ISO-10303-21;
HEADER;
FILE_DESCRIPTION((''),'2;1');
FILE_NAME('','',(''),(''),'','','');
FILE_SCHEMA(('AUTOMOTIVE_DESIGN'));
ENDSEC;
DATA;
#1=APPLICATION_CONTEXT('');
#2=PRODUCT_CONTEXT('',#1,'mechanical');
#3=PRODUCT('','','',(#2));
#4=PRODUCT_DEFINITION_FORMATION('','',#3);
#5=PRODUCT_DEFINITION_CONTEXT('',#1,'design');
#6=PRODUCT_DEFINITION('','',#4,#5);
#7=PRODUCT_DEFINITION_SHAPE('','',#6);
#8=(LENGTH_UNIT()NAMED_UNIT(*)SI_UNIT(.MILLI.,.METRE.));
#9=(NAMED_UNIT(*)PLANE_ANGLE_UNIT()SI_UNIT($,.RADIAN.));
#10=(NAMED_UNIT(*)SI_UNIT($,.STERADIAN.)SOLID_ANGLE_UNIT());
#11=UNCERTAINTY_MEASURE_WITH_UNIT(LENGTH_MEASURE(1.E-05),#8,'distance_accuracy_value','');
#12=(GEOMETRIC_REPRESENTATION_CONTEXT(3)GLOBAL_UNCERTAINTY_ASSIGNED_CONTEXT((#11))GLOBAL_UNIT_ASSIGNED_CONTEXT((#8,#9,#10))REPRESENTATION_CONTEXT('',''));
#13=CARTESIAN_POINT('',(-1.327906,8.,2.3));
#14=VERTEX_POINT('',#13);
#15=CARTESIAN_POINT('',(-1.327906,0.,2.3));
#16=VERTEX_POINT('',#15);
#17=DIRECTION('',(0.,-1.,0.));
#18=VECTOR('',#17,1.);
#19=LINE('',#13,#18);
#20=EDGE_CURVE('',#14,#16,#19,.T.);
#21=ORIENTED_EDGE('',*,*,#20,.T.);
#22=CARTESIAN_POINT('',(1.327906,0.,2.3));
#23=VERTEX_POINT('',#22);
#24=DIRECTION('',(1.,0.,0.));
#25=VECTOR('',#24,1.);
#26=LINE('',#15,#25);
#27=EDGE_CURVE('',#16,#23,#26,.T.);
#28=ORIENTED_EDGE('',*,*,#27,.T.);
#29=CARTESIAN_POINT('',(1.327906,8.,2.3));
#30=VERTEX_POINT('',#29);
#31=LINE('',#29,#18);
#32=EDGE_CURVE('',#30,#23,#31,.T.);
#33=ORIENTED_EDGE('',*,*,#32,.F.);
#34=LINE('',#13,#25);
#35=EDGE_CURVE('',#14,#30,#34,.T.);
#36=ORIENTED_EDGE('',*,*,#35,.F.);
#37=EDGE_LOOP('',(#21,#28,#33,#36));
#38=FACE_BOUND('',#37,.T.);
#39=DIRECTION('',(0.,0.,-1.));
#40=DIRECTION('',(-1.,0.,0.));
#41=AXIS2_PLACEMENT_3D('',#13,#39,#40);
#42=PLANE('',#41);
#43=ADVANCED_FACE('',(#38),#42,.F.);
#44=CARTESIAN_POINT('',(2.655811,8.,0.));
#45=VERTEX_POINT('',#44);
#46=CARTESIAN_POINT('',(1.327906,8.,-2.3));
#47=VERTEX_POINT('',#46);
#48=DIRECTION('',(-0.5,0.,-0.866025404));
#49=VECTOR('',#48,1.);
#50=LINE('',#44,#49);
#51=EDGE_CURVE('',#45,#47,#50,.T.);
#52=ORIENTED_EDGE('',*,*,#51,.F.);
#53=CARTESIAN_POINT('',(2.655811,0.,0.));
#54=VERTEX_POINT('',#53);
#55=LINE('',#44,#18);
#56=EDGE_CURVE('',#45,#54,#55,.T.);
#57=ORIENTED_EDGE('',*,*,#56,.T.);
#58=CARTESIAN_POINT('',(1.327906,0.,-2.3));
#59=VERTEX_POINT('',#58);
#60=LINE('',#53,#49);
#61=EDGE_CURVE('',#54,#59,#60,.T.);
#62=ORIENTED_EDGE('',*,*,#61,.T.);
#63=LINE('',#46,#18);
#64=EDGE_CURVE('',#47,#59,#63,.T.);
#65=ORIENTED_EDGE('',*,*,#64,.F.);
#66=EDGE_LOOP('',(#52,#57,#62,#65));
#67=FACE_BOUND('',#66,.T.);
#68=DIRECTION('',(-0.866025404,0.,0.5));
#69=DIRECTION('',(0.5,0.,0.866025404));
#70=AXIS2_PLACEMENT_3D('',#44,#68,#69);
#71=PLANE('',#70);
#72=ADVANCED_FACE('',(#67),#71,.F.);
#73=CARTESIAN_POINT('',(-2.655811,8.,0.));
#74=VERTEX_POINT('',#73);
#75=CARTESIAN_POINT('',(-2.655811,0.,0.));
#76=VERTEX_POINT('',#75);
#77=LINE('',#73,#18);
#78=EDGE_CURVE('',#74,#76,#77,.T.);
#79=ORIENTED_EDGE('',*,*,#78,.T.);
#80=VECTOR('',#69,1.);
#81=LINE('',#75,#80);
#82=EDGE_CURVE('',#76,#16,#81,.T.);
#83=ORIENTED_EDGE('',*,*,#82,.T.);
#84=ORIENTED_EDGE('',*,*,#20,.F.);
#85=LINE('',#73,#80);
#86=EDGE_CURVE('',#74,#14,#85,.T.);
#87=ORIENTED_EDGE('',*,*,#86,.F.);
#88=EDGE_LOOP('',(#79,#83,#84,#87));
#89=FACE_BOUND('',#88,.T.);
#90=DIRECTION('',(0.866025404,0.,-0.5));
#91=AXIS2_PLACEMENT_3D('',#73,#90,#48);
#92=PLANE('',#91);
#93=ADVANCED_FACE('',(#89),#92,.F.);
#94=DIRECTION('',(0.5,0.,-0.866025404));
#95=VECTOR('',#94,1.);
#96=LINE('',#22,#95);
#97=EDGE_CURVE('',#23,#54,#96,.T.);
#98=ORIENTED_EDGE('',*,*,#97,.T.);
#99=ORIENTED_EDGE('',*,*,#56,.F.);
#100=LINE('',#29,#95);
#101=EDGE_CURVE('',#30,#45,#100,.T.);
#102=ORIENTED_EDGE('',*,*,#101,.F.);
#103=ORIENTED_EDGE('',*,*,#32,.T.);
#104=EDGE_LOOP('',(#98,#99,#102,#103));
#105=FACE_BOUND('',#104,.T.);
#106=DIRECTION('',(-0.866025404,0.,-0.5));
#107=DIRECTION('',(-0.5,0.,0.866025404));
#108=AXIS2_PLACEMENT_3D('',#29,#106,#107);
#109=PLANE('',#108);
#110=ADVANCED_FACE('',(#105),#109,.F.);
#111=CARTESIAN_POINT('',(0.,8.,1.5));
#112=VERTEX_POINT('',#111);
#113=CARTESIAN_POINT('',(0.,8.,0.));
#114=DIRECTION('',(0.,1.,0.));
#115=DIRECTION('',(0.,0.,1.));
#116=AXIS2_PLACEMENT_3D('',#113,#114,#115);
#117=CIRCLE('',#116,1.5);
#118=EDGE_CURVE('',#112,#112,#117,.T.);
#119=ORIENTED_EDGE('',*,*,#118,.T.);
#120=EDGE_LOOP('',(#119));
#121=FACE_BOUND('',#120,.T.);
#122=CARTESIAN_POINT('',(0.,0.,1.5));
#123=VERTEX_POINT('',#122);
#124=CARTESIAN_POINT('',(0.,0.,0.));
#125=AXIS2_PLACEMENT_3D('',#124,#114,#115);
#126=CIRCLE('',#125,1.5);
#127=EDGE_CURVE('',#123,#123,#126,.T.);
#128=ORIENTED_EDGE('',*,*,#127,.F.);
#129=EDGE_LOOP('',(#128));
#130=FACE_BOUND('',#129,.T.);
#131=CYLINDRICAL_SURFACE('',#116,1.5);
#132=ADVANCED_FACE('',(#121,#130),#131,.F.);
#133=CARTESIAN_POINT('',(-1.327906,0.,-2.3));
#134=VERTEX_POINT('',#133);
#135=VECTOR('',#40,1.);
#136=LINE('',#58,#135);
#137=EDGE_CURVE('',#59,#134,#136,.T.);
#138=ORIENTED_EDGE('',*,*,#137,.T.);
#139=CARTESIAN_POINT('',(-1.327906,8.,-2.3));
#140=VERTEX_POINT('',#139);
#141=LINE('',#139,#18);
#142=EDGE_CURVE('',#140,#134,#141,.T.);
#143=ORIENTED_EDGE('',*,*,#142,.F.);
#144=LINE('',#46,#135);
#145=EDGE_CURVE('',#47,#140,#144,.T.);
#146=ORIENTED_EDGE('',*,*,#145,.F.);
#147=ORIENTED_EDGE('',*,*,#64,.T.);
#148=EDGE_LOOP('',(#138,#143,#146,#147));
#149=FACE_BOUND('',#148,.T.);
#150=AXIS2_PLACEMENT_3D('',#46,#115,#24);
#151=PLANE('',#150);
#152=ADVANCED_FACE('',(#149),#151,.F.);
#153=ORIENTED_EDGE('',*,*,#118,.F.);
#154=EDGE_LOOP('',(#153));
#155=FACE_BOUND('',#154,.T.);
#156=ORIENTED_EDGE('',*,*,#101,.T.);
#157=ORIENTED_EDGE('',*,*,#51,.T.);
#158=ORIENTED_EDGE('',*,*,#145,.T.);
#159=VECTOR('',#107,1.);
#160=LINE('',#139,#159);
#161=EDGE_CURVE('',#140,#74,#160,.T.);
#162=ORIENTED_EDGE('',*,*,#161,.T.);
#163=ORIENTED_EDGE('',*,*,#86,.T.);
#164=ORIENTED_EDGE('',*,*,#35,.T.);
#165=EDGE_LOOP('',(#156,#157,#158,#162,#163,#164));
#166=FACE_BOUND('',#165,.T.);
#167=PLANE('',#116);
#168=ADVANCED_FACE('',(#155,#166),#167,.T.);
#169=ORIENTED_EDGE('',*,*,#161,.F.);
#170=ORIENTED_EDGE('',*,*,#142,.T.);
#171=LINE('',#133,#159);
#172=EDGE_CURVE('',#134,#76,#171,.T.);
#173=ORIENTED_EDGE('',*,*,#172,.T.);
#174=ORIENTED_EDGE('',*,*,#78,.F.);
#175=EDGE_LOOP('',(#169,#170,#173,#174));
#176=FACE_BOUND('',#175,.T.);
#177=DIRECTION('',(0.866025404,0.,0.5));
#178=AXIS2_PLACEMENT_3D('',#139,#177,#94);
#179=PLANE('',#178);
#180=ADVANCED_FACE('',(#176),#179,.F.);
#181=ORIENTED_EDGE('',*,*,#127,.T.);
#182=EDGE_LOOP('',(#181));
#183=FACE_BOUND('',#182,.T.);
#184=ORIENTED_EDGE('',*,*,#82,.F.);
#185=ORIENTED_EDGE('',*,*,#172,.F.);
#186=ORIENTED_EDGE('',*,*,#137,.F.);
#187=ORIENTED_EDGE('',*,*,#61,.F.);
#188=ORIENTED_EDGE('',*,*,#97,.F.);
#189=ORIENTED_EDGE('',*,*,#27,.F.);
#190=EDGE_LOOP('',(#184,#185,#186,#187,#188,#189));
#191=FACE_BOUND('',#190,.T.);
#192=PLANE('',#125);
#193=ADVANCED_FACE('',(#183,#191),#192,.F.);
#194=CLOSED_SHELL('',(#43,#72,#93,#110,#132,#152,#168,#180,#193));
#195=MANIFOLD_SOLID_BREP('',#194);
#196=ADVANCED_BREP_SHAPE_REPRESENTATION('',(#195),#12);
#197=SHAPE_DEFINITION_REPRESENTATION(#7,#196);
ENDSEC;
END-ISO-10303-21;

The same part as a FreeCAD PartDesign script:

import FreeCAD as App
import Part
import Sketcher
from FreeCAD import Vector
Q = App.Units.Quantity

doc = App.newDocument("Part")
body = doc.addObject("PartDesign::Body", "Body")

# Sketch on XZ plane
sketch1 = body.newObject("Sketcher::SketchObject", "Sketch")
sketch1.AttachmentSupport = (doc.getObject("XZ_Plane"), [""])
sketch1.MapMode = "FlatFace"
sketch1.addGeometry([
    Part.LineSegment(Vector(2.7, 0, 0), Vector(1.3, -2.3, 0)),  # 0
    Part.LineSegment(Vector(1.3, -2.3, 0), Vector(-1.3, -2.3, 0)),  # 1
    Part.LineSegment(Vector(-1.3, -2.3, 0), Vector(-2.7, 0, 0)),  # 2
    Part.LineSegment(Vector(-2.7, 0, 0), Vector(-1.3, 2.3, 0)),  # 3
    Part.LineSegment(Vector(-1.3, 2.3, 0), Vector(1.3, 2.3, 0)),  # 4
    Part.LineSegment(Vector(1.3, 2.3, 0), Vector(2.7, 0, 0)),  # 5
], False)
sketch1.addConstraint([
    Sketcher.Constraint("Coincident", 0, 2, 1, 1),
    Sketcher.Constraint("Coincident", 1, 2, 2, 1),
    Sketcher.Constraint("Coincident", 2, 2, 3, 1),
    Sketcher.Constraint("Coincident", 3, 2, 4, 1),
    Sketcher.Constraint("Coincident", 4, 2, 5, 1),
    Sketcher.Constraint("Coincident", 5, 2, 0, 1),
    Sketcher.Constraint("Horizontal", 1),
    Sketcher.Constraint("Horizontal", 4),
    Sketcher.Constraint("Symmetric", 0, 2, 3, 2, -1, 1),
    Sketcher.Constraint("Symmetric", 2, 2, 5, 2, -1, 1),
    Sketcher.Constraint("PointOnObject", 2, 2, -1),
    Sketcher.Constraint("Parallel", 2, 5),
    Sketcher.Constraint("Vertical", 1, 2, 3, 2),
    Sketcher.Constraint("Angle", 0, Q("-120 deg")),
    Sketcher.Constraint("DistanceY", 0, 2, -1, 1, Q("2.3 mm")),
    Sketcher.Constraint("DistanceX", 1, 2, 1, 1, Q("2.655811 mm")),
])
pad1 = body.newObject("PartDesign::Pad", "Pad")
pad1.Profile = sketch1
pad1.Length = 8
pad1.Reversed = True

# Sketch on XZ plane
sketch2 = body.newObject("Sketcher::SketchObject", "Sketch001")
sketch2.AttachmentSupport = (doc.getObject("XZ_Plane"), [""])
sketch2.MapMode = "FlatFace"
sketch2.AttachmentOffset = App.Placement(Vector(0, 0, -8), App.Rotation())
sketch2.addGeometry(Part.Circle(Vector(0, 0, 0), Vector(0, 0, 1), 1.5), False)
sketch2.addConstraint([
    Sketcher.Constraint("Coincident", 0, 3, -1, 1),
    Sketcher.Constraint("Diameter", 0, Q("3 mm")),
])
doc.recompute()
hole = body.newObject("PartDesign::Hole", "Hole")
hole.Profile = sketch2
hole.ThreadType = "None"
hole.Diameter = 3
hole.DepthType = "ThroughAll"
hole.Reversed = True

doc.recompute()
